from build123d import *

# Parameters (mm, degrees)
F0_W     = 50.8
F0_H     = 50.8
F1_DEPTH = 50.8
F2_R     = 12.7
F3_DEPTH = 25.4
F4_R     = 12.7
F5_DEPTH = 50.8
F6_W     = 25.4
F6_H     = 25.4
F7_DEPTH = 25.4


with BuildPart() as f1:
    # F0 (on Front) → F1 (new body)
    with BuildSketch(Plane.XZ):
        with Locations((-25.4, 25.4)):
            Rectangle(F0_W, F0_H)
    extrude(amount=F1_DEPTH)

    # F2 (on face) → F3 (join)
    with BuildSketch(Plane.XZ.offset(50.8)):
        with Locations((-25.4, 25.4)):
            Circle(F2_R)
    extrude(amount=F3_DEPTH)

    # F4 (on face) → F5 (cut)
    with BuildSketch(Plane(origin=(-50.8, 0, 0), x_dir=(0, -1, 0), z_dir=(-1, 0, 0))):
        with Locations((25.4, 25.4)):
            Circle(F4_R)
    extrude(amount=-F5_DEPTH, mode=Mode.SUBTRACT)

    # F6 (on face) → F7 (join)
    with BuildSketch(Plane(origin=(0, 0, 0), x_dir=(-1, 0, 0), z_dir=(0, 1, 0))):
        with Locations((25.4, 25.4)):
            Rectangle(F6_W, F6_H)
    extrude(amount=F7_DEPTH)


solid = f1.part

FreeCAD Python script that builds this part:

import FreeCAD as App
import Part
import Sketcher
from FreeCAD import Vector
Q = App.Units.Quantity

doc = App.newDocument("Part")
body = doc.addObject("PartDesign::Body", "Body")

# Sketch on XZ plane
sketch1 = doc.addObject("Sketcher::SketchObject", "Sketch")
body.addObject(sketch1)
sketch1.AttachmentSupport = (doc.XZ_Plane, [""])
sketch1.MapMode = "FlatFace"
sketch1.addGeometry(Part.LineSegment(Vector(-50.8, 50.8, 0), Vector(-50.8, 0, 0)), False)
sketch1.addGeometry(Part.LineSegment(Vector(-50.8, 0, 0), Vector(0, 0, 0)), False)
sketch1.addGeometry(Part.LineSegment(Vector(0, 0, 0), Vector(0, 50.8, 0)), False)
sketch1.addGeometry(Part.LineSegment(Vector(0, 50.8, 0), Vector(-50.8, 50.8, 0)), False)
sketch1.addConstraint(Sketcher.Constraint("Coincident", 0, 2, 1, 1))
sketch1.addConstraint(Sketcher.Constraint("Coincident", 1, 2, 2, 1))
sketch1.addConstraint(Sketcher.Constraint("Coincident", 2, 2, 3, 1))
sketch1.addConstraint(Sketcher.Constraint("Coincident", 3, 2, 0, 1))
sketch1.addConstraint(Sketcher.Constraint("Vertical", 0))
sketch1.addConstraint(Sketcher.Constraint("Horizontal", 1))
sketch1.addConstraint(Sketcher.Constraint("Vertical", 2))
sketch1.addConstraint(Sketcher.Constraint("Horizontal", 3))
sketch1.addConstraint(Sketcher.Constraint("Coincident", 1, 2, -1, 1))
sketch1.addConstraint(Sketcher.Constraint("Equal", 3, 0))
sketch1.addConstraint(Sketcher.Constraint("DistanceX", 1, 1, 1, 2, Q("2 in")))
pad1 = doc.addObject("PartDesign::Pad", "Pad")
body.addObject(pad1)
pad1.Profile = sketch1
pad1.Length = Q("2 in")

# Sketch on XZ plane
sketch2 = doc.addObject("Sketcher::SketchObject", "Sketch001")
body.addObject(sketch2)
sketch2.AttachmentSupport = (doc.XZ_Plane, [""])
sketch2.MapMode = "FlatFace"
sketch2.AttachmentOffset = App.Placement(Vector(0, 0, 2 * 25.4), App.Rotation())
sketch2.addGeometry(Part.Circle(Vector(-25.4, 25.4, 0), Vector(0, 0, 1), 12.7), False)
sketch2.addConstraint(Sketcher.Constraint("Diameter", 0, Q("1 in")))
sketch2.addConstraint(Sketcher.Constraint("DistanceX", 0, 3, -1, 1, Q("1 in")))
sketch2.addConstraint(Sketcher.Constraint("DistanceY", -1, 1, 0, 3, Q("1 in")))
pad2 = doc.addObject("PartDesign::Pad", "Pad001")
body.addObject(pad2)
pad2.Profile = sketch2
pad2.Length = Q("1 in")

# Sketch on YZ plane
sketch3 = doc.addObject("Sketcher::SketchObject", "Sketch002")
body.addObject(sketch3)
sketch3.AttachmentSupport = (doc.YZ_Plane, [""])
sketch3.MapMode = "FlatFace"
sketch3.AttachmentOffset = App.Placement(Vector(0, 0, -2 * 25.4), App.Rotation())
sketch3.addGeometry(Part.Circle(Vector(-25.4, 25.4, 0), Vector(0, 0, 1), 12.7), False)
sketch3.addConstraint(Sketcher.Constraint("Diameter", 0, Q("1 in")))
sketch3.addConstraint(Sketcher.Constraint("DistanceX", 0, 3, -1, 1, Q("1 in")))
sketch3.addConstraint(Sketcher.Constraint("DistanceY", -1, 1, 0, 3, Q("1 in")))
pocket1 = doc.addObject("PartDesign::Pocket", "Pocket")
body.addObject(pocket1)
pocket1.Profile = sketch3
pocket1.Length = Q("2 in")
pocket1.Reversed = True

# Sketch on XZ plane
sketch4 = doc.addObject("Sketcher::SketchObject", "Sketch003")
body.addObject(sketch4)
sketch4.AttachmentSupport = (doc.XZ_Plane, [""])
sketch4.MapMode = "FlatFace"
sketch4.addGeometry(Part.LineSegment(Vector(-12.7, 38.1, 0), Vector(-12.7, 12.7, 0)), False)
sketch4.addGeometry(Part.LineSegment(Vector(-12.7, 12.7, 0), Vector(-38.1, 12.7, 0)), False)
sketch4.addGeometry(Part.LineSegment(Vector(-38.1, 12.7, 0), Vector(-38.1, 38.1, 0)), False)
sketch4.addGeometry(Part.LineSegment(Vector(-38.1, 38.1, 0), Vector(-12.7, 38.1, 0)), False)
sketch4.addConstraint(Sketcher.Constraint("Coincident", 0, 2, 1, 1))
sketch4.addConstraint(Sketcher.Constraint("Coincident", 1, 2, 2, 1))
sketch4.addConstraint(Sketcher.Constraint("Coincident", 2, 2, 3, 1))
sketch4.addConstraint(Sketcher.Constraint("Coincident", 3, 2, 0, 1))
sketch4.addConstraint(Sketcher.Constraint("Vertical", 0))
sketch4.addConstraint(Sketcher.Constraint("Horizontal", 1))
sketch4.addConstraint(Sketcher.Constraint("Vertical", 2))
sketch4.addConstraint(Sketcher.Constraint("Horizontal", 3))
sketch4.addConstraint(Sketcher.Constraint("Equal", 3, 0))
sketch4.addConstraint(Sketcher.Constraint("DistanceX", 1, 2, 1, 1, Q("1 in")))
sketch4.addConstraint(Sketcher.Constraint("DistanceX", 0, 2, -1, 1, Q("0.5 in")))
sketch4.addConstraint(Sketcher.Constraint("DistanceY", -1, 1, 0, 2, Q("0.5 in")))
pad3 = doc.addObject("PartDesign::Pad", "Pad002")
body.addObject(pad3)
pad3.Profile = sketch4
pad3.Length = Q("1 in")
pad3.Reversed = True

doc.recompute()
